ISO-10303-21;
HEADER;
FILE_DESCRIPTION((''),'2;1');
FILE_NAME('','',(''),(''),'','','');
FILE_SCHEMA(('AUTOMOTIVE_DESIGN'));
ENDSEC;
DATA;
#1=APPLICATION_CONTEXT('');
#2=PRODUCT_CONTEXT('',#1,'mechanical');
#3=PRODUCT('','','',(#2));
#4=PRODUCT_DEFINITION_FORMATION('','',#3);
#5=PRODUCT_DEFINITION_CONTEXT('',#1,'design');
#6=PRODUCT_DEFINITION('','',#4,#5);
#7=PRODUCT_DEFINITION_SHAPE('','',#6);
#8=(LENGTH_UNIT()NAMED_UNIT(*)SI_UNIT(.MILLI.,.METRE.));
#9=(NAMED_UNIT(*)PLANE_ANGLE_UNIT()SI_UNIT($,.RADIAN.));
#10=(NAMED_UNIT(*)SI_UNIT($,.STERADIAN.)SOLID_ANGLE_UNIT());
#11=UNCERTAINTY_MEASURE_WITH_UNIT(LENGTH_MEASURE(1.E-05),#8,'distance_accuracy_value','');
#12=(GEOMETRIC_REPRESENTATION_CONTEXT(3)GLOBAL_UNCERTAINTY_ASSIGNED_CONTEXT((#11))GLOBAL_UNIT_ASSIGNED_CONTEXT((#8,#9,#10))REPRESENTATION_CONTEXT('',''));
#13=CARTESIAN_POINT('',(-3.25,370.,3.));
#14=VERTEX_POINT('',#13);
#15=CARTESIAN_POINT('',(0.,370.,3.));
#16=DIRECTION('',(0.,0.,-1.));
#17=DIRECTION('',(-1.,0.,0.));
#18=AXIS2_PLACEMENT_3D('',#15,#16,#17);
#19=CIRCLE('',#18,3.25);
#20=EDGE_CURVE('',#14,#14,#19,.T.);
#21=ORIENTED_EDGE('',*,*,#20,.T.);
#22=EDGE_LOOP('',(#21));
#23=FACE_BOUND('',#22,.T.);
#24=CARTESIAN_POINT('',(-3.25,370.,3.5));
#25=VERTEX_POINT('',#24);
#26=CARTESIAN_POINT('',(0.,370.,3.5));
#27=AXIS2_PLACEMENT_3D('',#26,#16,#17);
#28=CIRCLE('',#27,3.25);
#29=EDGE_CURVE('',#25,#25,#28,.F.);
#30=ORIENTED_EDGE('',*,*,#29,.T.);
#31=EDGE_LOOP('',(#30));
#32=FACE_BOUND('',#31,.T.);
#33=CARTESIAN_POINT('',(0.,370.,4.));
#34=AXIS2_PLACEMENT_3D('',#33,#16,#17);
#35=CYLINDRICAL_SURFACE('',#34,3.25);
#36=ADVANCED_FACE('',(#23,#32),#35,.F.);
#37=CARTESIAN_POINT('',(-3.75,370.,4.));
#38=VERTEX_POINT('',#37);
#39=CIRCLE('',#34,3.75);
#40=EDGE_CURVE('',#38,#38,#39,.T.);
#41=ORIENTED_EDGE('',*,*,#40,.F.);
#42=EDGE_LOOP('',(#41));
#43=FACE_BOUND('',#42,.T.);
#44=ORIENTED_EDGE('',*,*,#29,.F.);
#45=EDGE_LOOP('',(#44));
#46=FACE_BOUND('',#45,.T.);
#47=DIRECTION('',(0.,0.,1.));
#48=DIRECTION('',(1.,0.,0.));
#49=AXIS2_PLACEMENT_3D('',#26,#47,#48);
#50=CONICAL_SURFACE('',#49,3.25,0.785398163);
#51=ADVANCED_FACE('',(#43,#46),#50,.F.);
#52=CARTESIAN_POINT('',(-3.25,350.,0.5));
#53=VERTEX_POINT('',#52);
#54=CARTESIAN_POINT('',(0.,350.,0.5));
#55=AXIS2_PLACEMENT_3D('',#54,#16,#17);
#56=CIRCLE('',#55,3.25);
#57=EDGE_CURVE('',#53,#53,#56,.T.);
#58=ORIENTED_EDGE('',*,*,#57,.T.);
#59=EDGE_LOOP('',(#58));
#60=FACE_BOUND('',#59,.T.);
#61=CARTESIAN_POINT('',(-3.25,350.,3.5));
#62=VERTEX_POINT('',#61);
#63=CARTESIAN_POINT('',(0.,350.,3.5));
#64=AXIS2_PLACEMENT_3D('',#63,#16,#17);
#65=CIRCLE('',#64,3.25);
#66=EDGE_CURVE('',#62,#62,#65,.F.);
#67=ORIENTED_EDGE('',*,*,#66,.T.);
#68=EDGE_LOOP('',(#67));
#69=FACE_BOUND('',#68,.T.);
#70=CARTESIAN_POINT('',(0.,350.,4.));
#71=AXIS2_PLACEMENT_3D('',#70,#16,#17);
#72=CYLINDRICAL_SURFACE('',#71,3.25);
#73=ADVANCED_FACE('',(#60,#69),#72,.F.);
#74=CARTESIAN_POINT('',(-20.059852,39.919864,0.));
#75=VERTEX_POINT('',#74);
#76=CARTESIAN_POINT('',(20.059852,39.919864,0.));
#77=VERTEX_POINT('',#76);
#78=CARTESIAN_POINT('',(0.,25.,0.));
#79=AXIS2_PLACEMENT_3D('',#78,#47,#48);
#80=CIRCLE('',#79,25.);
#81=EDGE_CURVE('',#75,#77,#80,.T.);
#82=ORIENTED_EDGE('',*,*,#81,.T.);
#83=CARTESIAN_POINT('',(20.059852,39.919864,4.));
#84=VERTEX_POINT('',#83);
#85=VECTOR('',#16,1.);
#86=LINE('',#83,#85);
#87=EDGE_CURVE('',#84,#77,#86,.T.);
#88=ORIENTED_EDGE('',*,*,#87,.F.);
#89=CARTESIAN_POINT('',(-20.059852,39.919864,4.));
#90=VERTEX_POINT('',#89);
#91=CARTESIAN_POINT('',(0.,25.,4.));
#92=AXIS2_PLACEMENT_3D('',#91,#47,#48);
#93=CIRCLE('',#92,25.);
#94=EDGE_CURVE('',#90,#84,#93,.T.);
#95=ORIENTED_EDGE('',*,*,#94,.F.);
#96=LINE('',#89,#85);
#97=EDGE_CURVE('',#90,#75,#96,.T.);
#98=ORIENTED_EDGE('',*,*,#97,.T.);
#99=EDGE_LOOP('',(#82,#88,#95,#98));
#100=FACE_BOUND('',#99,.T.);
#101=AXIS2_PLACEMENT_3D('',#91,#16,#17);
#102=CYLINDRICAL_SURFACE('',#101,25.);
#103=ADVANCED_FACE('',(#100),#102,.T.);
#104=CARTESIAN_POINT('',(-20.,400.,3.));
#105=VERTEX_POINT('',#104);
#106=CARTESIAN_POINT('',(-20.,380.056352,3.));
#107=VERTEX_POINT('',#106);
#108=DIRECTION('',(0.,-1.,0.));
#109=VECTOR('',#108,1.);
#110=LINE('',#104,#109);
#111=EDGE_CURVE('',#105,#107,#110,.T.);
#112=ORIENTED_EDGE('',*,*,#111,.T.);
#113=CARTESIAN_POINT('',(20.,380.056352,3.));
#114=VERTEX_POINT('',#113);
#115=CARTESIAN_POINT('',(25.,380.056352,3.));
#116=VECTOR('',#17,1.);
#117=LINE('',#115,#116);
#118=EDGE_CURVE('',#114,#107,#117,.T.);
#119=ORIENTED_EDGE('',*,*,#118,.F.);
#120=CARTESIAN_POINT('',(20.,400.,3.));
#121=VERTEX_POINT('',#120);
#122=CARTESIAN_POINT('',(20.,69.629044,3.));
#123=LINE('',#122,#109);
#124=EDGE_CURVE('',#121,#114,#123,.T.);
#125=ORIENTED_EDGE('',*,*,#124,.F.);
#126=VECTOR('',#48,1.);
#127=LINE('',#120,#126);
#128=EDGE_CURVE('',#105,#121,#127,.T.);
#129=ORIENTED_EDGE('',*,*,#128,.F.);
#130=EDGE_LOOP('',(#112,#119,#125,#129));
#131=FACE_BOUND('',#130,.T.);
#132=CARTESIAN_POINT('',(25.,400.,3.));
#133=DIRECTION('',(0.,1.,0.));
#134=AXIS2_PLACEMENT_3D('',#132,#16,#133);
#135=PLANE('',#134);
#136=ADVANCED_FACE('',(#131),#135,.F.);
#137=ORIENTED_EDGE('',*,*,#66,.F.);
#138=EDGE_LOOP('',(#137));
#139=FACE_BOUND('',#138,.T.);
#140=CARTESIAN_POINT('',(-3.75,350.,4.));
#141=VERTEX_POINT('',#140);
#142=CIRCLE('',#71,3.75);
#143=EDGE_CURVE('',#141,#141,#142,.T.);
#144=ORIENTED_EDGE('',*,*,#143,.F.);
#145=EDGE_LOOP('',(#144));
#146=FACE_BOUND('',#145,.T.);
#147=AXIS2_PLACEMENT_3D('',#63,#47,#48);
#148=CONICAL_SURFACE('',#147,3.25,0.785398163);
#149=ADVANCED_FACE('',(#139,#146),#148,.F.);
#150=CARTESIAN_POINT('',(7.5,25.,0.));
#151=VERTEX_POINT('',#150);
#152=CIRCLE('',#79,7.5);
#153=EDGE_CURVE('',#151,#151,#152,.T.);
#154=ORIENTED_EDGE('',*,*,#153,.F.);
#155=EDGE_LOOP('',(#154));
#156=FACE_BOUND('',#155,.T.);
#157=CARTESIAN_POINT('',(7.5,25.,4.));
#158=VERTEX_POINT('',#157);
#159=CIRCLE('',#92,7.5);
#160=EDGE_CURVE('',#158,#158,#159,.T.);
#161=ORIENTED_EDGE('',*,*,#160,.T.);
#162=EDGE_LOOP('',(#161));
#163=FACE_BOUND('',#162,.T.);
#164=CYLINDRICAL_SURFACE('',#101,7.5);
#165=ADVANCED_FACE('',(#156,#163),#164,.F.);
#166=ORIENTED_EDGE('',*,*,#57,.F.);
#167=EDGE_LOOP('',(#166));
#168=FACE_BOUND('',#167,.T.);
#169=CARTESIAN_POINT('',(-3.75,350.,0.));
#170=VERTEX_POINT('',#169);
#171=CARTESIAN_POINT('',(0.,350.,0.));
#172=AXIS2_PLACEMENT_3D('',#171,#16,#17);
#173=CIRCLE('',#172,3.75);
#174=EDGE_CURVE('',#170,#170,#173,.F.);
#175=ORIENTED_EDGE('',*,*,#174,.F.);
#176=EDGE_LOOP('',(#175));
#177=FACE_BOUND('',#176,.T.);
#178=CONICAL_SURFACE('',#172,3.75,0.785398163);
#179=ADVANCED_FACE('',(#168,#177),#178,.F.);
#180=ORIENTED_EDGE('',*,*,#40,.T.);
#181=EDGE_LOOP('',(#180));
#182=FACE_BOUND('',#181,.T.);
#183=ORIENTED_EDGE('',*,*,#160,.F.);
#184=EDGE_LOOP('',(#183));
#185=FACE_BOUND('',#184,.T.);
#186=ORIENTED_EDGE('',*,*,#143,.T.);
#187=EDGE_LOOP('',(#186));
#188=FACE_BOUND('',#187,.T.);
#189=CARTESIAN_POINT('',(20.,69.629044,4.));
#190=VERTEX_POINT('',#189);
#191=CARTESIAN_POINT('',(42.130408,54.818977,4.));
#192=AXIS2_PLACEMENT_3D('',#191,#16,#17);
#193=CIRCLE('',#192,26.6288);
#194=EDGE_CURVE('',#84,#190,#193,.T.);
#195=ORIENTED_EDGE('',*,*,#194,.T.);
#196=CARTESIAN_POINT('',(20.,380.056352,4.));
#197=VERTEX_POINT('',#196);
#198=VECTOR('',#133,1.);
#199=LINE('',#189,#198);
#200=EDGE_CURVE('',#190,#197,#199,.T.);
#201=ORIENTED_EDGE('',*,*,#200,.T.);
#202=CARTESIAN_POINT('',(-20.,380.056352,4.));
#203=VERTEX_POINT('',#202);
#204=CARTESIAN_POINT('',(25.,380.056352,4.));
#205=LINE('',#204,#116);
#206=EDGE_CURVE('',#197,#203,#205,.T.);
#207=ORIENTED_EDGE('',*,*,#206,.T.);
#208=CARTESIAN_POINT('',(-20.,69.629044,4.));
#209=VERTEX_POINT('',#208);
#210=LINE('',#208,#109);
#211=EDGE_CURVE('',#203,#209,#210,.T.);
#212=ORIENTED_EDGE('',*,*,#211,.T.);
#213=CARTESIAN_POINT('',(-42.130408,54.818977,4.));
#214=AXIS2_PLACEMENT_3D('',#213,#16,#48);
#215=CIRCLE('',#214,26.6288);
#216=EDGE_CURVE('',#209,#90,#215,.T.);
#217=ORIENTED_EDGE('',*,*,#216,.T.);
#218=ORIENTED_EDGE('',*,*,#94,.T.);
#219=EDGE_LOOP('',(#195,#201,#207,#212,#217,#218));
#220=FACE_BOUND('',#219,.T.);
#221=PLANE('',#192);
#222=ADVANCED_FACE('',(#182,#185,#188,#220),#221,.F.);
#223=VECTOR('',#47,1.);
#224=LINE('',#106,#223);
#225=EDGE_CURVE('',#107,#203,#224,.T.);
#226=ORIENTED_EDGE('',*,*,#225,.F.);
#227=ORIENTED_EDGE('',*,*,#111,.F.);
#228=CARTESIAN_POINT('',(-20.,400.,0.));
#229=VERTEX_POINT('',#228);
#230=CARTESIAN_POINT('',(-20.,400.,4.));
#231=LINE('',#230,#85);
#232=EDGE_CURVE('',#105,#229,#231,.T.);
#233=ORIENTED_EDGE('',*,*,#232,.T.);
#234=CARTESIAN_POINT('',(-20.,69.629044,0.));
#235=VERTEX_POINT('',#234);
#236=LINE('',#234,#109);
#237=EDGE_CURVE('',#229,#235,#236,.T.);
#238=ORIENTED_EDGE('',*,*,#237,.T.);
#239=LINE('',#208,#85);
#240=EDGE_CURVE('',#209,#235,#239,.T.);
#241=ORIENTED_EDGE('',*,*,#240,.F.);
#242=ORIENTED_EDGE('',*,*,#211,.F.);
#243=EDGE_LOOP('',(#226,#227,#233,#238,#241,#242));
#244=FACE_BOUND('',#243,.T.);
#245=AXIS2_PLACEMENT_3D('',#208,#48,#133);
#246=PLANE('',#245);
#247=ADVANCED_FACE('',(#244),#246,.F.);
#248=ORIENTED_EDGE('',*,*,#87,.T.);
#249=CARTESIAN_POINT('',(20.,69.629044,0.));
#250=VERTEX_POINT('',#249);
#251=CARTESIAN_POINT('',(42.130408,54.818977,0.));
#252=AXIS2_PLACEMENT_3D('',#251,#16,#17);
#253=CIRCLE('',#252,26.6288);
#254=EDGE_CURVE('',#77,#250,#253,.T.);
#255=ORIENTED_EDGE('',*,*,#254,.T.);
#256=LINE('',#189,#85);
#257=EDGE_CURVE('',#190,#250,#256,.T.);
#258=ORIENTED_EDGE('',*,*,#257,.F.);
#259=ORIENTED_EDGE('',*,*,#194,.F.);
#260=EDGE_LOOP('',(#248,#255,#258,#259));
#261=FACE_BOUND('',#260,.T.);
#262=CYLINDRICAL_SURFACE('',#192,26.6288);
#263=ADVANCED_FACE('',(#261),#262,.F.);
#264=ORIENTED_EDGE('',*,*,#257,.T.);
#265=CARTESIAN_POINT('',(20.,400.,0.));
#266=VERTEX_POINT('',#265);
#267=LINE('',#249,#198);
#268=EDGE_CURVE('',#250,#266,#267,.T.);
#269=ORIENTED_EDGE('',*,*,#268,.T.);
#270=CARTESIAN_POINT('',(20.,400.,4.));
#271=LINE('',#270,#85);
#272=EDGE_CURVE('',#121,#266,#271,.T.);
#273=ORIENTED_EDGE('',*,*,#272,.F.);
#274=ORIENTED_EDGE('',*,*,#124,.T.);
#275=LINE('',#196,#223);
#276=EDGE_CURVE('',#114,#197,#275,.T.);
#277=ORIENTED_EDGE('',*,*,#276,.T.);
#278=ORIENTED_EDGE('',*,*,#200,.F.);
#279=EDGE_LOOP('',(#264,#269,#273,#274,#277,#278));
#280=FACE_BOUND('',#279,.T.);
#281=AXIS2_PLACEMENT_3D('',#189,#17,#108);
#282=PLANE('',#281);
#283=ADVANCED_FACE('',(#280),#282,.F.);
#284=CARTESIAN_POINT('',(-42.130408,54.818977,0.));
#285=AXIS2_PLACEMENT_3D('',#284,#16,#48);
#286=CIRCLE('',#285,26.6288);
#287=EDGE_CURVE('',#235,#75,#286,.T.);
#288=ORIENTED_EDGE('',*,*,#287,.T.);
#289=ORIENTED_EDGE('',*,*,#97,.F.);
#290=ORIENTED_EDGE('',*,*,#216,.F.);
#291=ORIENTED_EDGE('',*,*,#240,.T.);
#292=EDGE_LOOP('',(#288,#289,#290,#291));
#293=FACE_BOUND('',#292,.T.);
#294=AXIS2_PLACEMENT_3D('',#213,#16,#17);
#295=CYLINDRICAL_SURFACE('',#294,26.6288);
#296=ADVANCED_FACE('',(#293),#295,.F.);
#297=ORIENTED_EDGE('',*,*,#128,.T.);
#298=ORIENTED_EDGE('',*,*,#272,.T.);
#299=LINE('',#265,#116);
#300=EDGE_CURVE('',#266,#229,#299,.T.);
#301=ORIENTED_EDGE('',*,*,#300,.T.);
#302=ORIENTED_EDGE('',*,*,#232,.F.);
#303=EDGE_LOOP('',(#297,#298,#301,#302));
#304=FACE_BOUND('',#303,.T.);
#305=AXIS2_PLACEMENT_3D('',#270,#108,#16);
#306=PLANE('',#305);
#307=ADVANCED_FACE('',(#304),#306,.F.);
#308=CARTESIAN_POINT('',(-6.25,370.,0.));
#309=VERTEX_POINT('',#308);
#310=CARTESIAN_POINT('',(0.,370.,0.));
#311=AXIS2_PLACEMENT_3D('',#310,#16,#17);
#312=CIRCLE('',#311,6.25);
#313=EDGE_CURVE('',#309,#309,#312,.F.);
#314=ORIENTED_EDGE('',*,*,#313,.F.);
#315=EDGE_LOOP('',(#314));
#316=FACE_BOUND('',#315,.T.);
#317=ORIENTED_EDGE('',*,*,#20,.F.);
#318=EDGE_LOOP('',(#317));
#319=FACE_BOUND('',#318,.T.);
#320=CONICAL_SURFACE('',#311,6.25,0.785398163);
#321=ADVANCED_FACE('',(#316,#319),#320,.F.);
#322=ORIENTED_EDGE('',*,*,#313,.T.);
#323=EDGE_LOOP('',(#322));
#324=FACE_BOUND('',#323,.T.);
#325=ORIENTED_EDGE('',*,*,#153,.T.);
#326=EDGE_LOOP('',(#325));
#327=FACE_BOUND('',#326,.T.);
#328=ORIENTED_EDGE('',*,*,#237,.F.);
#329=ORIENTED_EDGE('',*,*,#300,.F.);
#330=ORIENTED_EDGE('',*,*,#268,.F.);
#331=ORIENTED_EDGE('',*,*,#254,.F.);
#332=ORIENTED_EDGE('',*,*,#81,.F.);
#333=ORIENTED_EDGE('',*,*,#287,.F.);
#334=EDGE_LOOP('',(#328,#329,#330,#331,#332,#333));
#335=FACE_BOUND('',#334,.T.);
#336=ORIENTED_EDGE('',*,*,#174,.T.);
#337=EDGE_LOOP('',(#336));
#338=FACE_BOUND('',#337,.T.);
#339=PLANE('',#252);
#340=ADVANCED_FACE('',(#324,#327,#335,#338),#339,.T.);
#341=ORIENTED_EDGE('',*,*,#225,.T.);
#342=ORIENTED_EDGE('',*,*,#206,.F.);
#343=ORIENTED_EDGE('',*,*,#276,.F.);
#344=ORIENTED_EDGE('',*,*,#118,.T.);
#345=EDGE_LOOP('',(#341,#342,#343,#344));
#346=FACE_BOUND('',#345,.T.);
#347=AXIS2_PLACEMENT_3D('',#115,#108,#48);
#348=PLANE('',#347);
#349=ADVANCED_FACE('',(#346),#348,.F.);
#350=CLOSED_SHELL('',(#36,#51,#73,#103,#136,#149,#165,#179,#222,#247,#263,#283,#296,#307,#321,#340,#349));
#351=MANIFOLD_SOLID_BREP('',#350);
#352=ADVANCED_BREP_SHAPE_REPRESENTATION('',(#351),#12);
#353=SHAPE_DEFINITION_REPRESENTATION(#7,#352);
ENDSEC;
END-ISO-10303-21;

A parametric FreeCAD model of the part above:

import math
import FreeCAD as App
import Part
import Sketcher

V = App.Vector


def edges_at(feature, points):
    """Names of the edges that pass closest to the given points."""
    edges = feature.Shape.Edges
    near = lambda p: min(range(len(edges)), key=lambda i: edges[i].distToShape(Part.Vertex(*p))[0])
    return sorted({f"Edge{near(p) + 1}" for p in points})


def add_polygon(sketch, points):
    """Adds a closed chain of lines whose ends are joined by coincident constraints."""
    first, n = sketch.GeometryCount, len(points)
    for a, b in zip(points, points[1:] + points[:1]):
        sketch.addGeometry(Part.LineSegment(App.Vector(*a, 0), App.Vector(*b, 0)), False)
    for i in range(n):
        sketch.addConstraint(Sketcher.Constraint("Coincident", first + i, 2, first + (i + 1) % n, 1))

doc = App.newDocument("Part")
params = doc.addObject("Spreadsheet::Sheet", "Params")
for row, (alias, value) in enumerate([
    ("sketch1_diameter", "15 mm"),
    ("sketch1_radius", "25 mm"),
    ("sketch1_diameter2", "6.5 mm"),
    ("sketch1_width", "40 mm"),
    ("pad1_length", "4 mm"),
    ("sketch2_height", "1 mm"),
    ("chamfer_size", "3 mm"),
    ("chamfer2_size", "0.5 mm"),
], start=1):
    params.set(f"A{row}", alias)
    params.set(f"B{row}", "=" + value)
    params.setAlias(f"B{row}", alias)

body = doc.addObject("PartDesign::Body", "Body")

sketch1 = body.newObject("Sketcher::SketchObject", "Sketch")
sketch1.AttachmentSupport = (doc.getObject("XY_Plane"), [""])
sketch1.MapMode = "FlatFace"
sketch1.addGeometry([
    Part.LineSegment(V(20, 69.6, 0), V(20, 400, 0)),
    Part.LineSegment(V(20, 400, 0), V(-20, 400, 0)),
    Part.LineSegment(V(-20, 400, 0), V(-20, 69.6, 0)),
    Part.ArcOfCircle(Part.Circle(V(-42.1, 54.8, 0), V(0, 0, 1), 26.6), math.radians(-34), math.radians(34)),
    Part.ArcOfCircle(Part.Circle(V(0, 25, 0), V(0, 0, 1), 25), math.radians(143), math.radians(397)),
    Part.ArcOfCircle(Part.Circle(V(42.1, 54.8, 0), V(0, 0, 1), 26.6), math.radians(146), math.radians(214)),
    Part.Circle(V(0, 25, 0), V(0, 0, 1), 7.5),
    Part.Circle(V(0, 350, 0), V(0, 0, 1), 3.2),
    Part.Circle(V(0, 370, 0), V(0, 0, 1), 3.2),
], False)
sketch1.addConstraint([
    Sketcher.Constraint("Coincident", 0, 2, 1, 1),
    Sketcher.Constraint("Coincident", 1, 2, 2, 1),
    Sketcher.Constraint("Coincident", 2, 2, 3, 2),
    Sketcher.Constraint("Coincident", 3, 1, 4, 1),
    Sketcher.Constraint("Coincident", 4, 2, 5, 2),
    Sketcher.Constraint("Coincident", 5, 1, 0, 1),
    Sketcher.Constraint("Vertical", 0),
    Sketcher.Constraint("Horizontal", 1),
    Sketcher.Constraint("Vertical", 2),
    Sketcher.Constraint("Coincident", 6, 3, 4, 3),
    Sketcher.Constraint("Equal", 3, 5),
    Sketcher.Constraint("Equal", 7, 8),
    Sketcher.Constraint("Symmetric", 3, 3, 5, 3, -2),
    Sketcher.Constraint("PointOnObject", 4, 3, -2),
    Sketcher.Constraint("PointOnObject", 7, 3, -2),
    Sketcher.Constraint("PointOnObject", 8, 3, -2),
    Sketcher.Constraint("Horizontal", 2, 2, 5, 1),
    Sketcher.Constraint("Diameter", 6, 15.0),
    Sketcher.Constraint("Radius", 4, 25.0),
    Sketcher.Constraint("Diameter", 7, 6.5),
    Sketcher.Constraint("DistanceX", 1, 2, 1, 1, 40.0),
    Sketcher.Constraint("DistanceY", -1, 1, 4, 3, 25.0),
    Sketcher.Constraint("DistanceY", -1, 1, 7, 3, 350.0),
    Sketcher.Constraint("DistanceY", -1, 1, 8, 3, 370.0),
    Sketcher.Constraint("DistanceY", -1, 1, 0, 2, 400.0),
    Sketcher.Constraint("Radius", 3, 26.6288),
    Sketcher.Constraint("DistanceY", 0, 1, 0, 2, 330.370956),
    Sketcher.Constraint("DistanceX", 3, 1, -1, 1, 20.059852),
])
sketch1.setExpression("Constraints[17]", "Params.sketch1_diameter")
sketch1.setExpression("Constraints[18]", "Params.sketch1_radius")
sketch1.setExpression("Constraints[19]", "Params.sketch1_diameter2")
sketch1.setExpression("Constraints[20]", "Params.sketch1_width")
pad1 = body.newObject("PartDesign::Pad", "Pad")
pad1.Profile = sketch1
pad1.setExpression("Length", "Params.pad1_length")

sketch2 = body.newObject("Sketcher::SketchObject", "Sketch001")
sketch2.AttachmentSupport = (doc.getObject("YZ_Plane"), [""])
sketch2.MapMode = "FlatFace"
sketch2.AttachmentOffset = App.Placement(V(0, 0, -20), App.Rotation())
add_polygon(sketch2, [(400, 3), (380.1, 3), (380.1, 4), (400, 4)])
sketch2.addConstraint([
    Sketcher.Constraint("Horizontal", 0),
    Sketcher.Constraint("Vertical", 1),
    Sketcher.Constraint("Horizontal", 2),
    Sketcher.Constraint("Vertical", 3),
    Sketcher.Constraint("DistanceY", 1, 1, 1, 2, 1.0),
    Sketcher.Constraint("DistanceY", -1, 1, 0, 2, 3.0),
    Sketcher.Constraint("DistanceX", -1, 1, 2, 2, 400.0),
    Sketcher.Constraint("DistanceX", 0, 2, 0, 1, 19.943648),
])
sketch2.setExpression("Constraints[8]", "Params.sketch2_height")
pocket1 = body.newObject("PartDesign::Pocket", "Pocket")
pocket1.Profile = sketch2
pocket1.Type = "ThroughAll"
pocket1.Reversed = True
doc.recompute()

chamfer = body.newObject("PartDesign::Chamfer", "Chamfer")
chamfer.Base = (pocket1, edges_at(pocket1, [(-3.25, 370, 0)]))
chamfer.setExpression("Size", "Params.chamfer_size")
doc.recompute()

chamfer2 = body.newObject("PartDesign::Chamfer", "Chamfer001")
chamfer2.Base = (chamfer, edges_at(chamfer, [(-3.25, 350, 0), (-3.25, 350, 4), (-3.25, 370, 4)]))
chamfer2.setExpression("Size", "Params.chamfer2_size")

doc.recompute()
